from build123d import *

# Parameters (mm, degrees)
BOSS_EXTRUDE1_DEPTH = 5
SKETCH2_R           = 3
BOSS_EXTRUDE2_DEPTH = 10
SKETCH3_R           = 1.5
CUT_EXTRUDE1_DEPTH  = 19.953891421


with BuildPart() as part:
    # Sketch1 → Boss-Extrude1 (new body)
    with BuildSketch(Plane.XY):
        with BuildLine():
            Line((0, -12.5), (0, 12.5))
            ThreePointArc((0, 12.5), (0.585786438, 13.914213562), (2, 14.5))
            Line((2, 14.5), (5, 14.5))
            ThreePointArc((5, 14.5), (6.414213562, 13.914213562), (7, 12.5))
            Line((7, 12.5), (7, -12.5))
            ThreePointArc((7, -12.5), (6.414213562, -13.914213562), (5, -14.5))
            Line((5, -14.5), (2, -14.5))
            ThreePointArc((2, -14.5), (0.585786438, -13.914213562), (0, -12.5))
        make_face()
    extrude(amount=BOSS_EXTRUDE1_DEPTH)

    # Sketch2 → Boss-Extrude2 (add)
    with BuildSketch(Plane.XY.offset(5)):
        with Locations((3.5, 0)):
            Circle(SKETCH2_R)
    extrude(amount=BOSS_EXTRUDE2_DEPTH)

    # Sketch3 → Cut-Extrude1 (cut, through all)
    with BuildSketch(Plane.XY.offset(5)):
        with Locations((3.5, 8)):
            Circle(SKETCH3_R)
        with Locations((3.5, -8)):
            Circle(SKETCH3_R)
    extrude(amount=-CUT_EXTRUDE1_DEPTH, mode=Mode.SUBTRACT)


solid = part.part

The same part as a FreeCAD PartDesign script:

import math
import FreeCAD as App
import Part
import Sketcher

V = App.Vector

doc = App.newDocument("Part")
body = doc.addObject("PartDesign::Body", "Body")

sketch1 = body.newObject("Sketcher::SketchObject", "Sketch")
sketch1.AttachmentSupport = (doc.getObject("XY_Plane"), [""])
sketch1.MapMode = "FlatFace"
sketch1.addGeometry(Part.LineSegment(V(0, 12.5, 0), V(0, -12.5, 0)), False)
sketch1.addGeometry(Part.ArcOfCircle(Part.Circle(V(2, -12.5, 0), V(0, 0, 1), 2), math.radians(-180), math.radians(-90)), False)
sketch1.addGeometry(Part.LineSegment(V(2, -14.5, 0), V(5, -14.5, 0)), False)
sketch1.addGeometry(Part.ArcOfCircle(Part.Circle(V(5, -12.5, 0), V(0, 0, 1), 2), math.radians(-90), math.radians(0)), False)
sketch1.addGeometry(Part.LineSegment(V(7, -12.5, 0), V(7, 12.5, 0)), False)
sketch1.addGeometry(Part.ArcOfCircle(Part.Circle(V(5, 12.5, 0), V(0, 0, 1), 2), math.radians(0), math.radians(90)), False)
sketch1.addGeometry(Part.LineSegment(V(5, 14.5, 0), V(2, 14.5, 0)), False)
sketch1.addGeometry(Part.ArcOfCircle(Part.Circle(V(2, 12.5, 0), V(0, 0, 1), 2), math.radians(90), math.radians(180)), False)
sketch1.addConstraint(Sketcher.Constraint("Tangent", 0, 2, 1, 1))
sketch1.addConstraint(Sketcher.Constraint("Tangent", 1, 2, 2, 1))
sketch1.addConstraint(Sketcher.Constraint("Tangent", 2, 2, 3, 1))
sketch1.addConstraint(Sketcher.Constraint("Tangent", 3, 2, 4, 1))
sketch1.addConstraint(Sketcher.Constraint("Tangent", 4, 2, 5, 1))
sketch1.addConstraint(Sketcher.Constraint("Tangent", 5, 2, 6, 1))
sketch1.addConstraint(Sketcher.Constraint("Tangent", 6, 2, 7, 1))
sketch1.addConstraint(Sketcher.Constraint("Tangent", 7, 2, 0, 1))
sketch1.addConstraint(Sketcher.Constraint("Vertical", 0))
sketch1.addConstraint(Sketcher.Constraint("Horizontal", 2))
sketch1.addConstraint(Sketcher.Constraint("Vertical", 4))
sketch1.addConstraint(Sketcher.Constraint("Horizontal", 6))
sketch1.addConstraint(Sketcher.Constraint("Equal", 1, 3))
sketch1.addConstraint(Sketcher.Constraint("Equal", 3, 5))
sketch1.addConstraint(Sketcher.Constraint("Equal", 5, 7))
sketch1.addConstraint(Sketcher.Constraint("Symmetric", 0, 2, 7, 2, -1, 1))
sketch1.addConstraint(Sketcher.Constraint("Radius", 1, 2.0))
sketch1.addConstraint(Sketcher.Constraint("DistanceX", 2, 1, 2, 2, 3.0))
sketch1.addConstraint(Sketcher.Constraint("DistanceY", 0, 2, 0, 1, 25.0))
pad1 = body.newObject("PartDesign::Pad", "Pad")
pad1.Profile = sketch1
pad1.Length = 5

sketch2 = body.newObject("Sketcher::SketchObject", "Sketch001")
sketch2.AttachmentSupport = (doc.getObject("XY_Plane"), [""])
sketch2.MapMode = "FlatFace"
sketch2.AttachmentOffset = App.Placement(V(0, 0, 5), App.Rotation())
sketch2.addGeometry(Part.Circle(V(3.5, 0, 0), V(0, 0, 1), 3), False)
sketch2.addConstraint(Sketcher.Constraint("PointOnObject", 0, 3, -1))
sketch2.addConstraint(Sketcher.Constraint("Diameter", 0, 6.0))
sketch2.addConstraint(Sketcher.Constraint("DistanceX", -1, 1, 0, 3, 3.5))
pad2 = body.newObject("PartDesign::Pad", "Pad001")
pad2.Profile = sketch2
pad2.Length = 10

sketch3 = body.newObject("Sketcher::SketchObject", "Sketch002")
sketch3.AttachmentSupport = (doc.getObject("XY_Plane"), [""])
sketch3.MapMode = "FlatFace"
sketch3.AttachmentOffset = App.Placement(V(0, 0, 5), App.Rotation())
sketch3.addGeometry(Part.Circle(V(3.5, 8, 0), V(0, 0, 1), 1.5), False)
sketch3.addGeometry(Part.Circle(V(3.5, -8, 0), V(0, 0, 1), 1.5), False)
sketch3.addConstraint(Sketcher.Constraint("Equal", 0, 1))
sketch3.addConstraint(Sketcher.Constraint("Symmetric", 0, 3, 1, 3, -1))
sketch3.addConstraint(Sketcher.Constraint("Diameter", 0, 3.0))
sketch3.addConstraint(Sketcher.Constraint("DistanceY", -1, 1, 0, 3, 8.0))
sketch3.addConstraint(Sketcher.Constraint("DistanceX", -1, 1, 0, 3, 3.5))
pocket1 = body.newObject("PartDesign::Pocket", "Pocket")
pocket1.Profile = sketch3
pocket1.Type = "ThroughAll"

doc.recompute()
